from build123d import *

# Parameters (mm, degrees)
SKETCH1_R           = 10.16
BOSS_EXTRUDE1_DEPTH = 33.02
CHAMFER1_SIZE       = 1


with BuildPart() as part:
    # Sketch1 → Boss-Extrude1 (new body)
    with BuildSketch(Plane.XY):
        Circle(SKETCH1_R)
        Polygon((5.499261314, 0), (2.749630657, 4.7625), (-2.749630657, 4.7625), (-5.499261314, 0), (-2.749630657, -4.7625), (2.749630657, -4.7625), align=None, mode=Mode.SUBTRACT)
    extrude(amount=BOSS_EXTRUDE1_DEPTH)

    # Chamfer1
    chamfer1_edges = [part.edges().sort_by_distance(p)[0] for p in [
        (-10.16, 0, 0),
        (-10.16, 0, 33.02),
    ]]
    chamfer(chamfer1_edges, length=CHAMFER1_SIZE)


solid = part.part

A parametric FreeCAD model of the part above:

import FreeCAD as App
import Part
import Sketcher

V = App.Vector
Q = App.Units.Quantity


def edges_at(feature, points):
    """Names of the edges that pass closest to the given points."""
    edges = feature.Shape.Edges
    near = lambda p: min(range(len(edges)), key=lambda i: edges[i].distToShape(Part.Vertex(*p))[0])
    return sorted({f"Edge{near(p) + 1}" for p in points})

doc = App.newDocument("Part")
params = doc.addObject("Spreadsheet::Sheet", "Params")
for row, (alias, value) in enumerate([
    ("sketch1_diameter", "0.8 in"),
    ("pad1_length", "1.3 in"),
    ("chamfer_size", "1 mm"),
], start=1):
    params.set(f"A{row}", alias)
    params.set(f"B{row}", "=" + value)
    params.setAlias(f"B{row}", alias)

body = doc.addObject("PartDesign::Body", "Body")

# Sketch on XY plane
sketch1 = doc.addObject("Sketcher::SketchObject", "Sketch")
body.addObject(sketch1)
sketch1.AttachmentSupport = (doc.XY_Plane, [""])
sketch1.MapMode = "FlatFace"
sketch1.addGeometry(Part.Circle(V(0, 0, 0), V(0, 0, 1), 10.16), False)
sketch1.addGeometry(Part.LineSegment(V(2.749631, 4.7625, 0), V(5.499261, 0, 0)), False)
sketch1.addGeometry(Part.LineSegment(V(5.499261, 0, 0), V(2.749631, -4.7625, 0)), False)
sketch1.addGeometry(Part.LineSegment(V(2.749631, -4.7625, 0), V(-2.749631, -4.7625, 0)), False)
sketch1.addGeometry(Part.LineSegment(V(-2.749631, -4.7625, 0), V(-5.499261, 0, 0)), False)
sketch1.addGeometry(Part.LineSegment(V(-5.499261, 0, 0), V(-2.749631, 4.7625, 0)), False)
sketch1.addGeometry(Part.LineSegment(V(-2.749631, 4.7625, 0), V(2.749631, 4.7625, 0)), False)
sketch1.addConstraint(Sketcher.Constraint("Coincident", 1, 2, 2, 1))
sketch1.addConstraint(Sketcher.Constraint("Coincident", 2, 2, 3, 1))
sketch1.addConstraint(Sketcher.Constraint("Coincident", 3, 2, 4, 1))
sketch1.addConstraint(Sketcher.Constraint("Coincident", 4, 2, 5, 1))
sketch1.addConstraint(Sketcher.Constraint("Coincident", 5, 2, 6, 1))
sketch1.addConstraint(Sketcher.Constraint("Coincident", 6, 2, 1, 1))
sketch1.addConstraint(Sketcher.Constraint("Horizontal", 3))
sketch1.addConstraint(Sketcher.Constraint("Horizontal", 6))
sketch1.addConstraint(Sketcher.Constraint("Coincident", 0, 3, -1, 1))
sketch1.addConstraint(Sketcher.Constraint("Symmetric", 1, 2, 4, 2, -1, 1))
sketch1.addConstraint(Sketcher.Constraint("Symmetric", 2, 2, 5, 2, -1, 1))
sketch1.addConstraint(Sketcher.Constraint("PointOnObject", 1, 2, -1))
sketch1.addConstraint(Sketcher.Constraint("Parallel", 1, 4))
sketch1.addConstraint(Sketcher.Constraint("Vertical", 3, 2, 5, 2))
sketch1.addConstraint(Sketcher.Constraint("Diameter", 0, Q("0.8 in")))
sketch1.addConstraint(Sketcher.Constraint("Angle", 1, Q("-60 deg")))
sketch1.addConstraint(Sketcher.Constraint("DistanceY", 2, 2, -1, 1, Q("0.1875 in")))
sketch1.addConstraint(Sketcher.Constraint("DistanceX", 3, 2, 3, 1, Q("5.499261 mm")))
sketch1.setExpression("Constraints[14]", "Params.sketch1_diameter")
pad1 = doc.addObject("PartDesign::Pad", "Pad")
body.addObject(pad1)
pad1.Profile = sketch1
pad1.setExpression("Length", "Params.pad1_length")
doc.recompute()

chamfer = doc.addObject("PartDesign::Chamfer", "Chamfer")
body.addObject(chamfer)
chamfer.Base = (pad1, edges_at(pad1, [(-10.16, 0, 0), (-10.16, 0, 33.02)]))
chamfer.setExpression("Size", "Params.chamfer_size")

doc.recompute()
